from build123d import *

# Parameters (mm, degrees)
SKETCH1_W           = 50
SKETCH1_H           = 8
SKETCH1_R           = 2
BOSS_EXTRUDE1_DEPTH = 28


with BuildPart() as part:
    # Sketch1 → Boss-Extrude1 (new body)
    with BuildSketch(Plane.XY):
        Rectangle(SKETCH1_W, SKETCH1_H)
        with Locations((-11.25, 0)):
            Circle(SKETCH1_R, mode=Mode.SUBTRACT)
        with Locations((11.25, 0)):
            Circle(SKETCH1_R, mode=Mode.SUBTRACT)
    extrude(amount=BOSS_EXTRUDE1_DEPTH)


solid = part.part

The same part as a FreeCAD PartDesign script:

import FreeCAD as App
import Part
import Sketcher
from FreeCAD import Vector


def add_polygon(sketch, points):
    """Adds a closed chain of lines whose ends are joined by coincident constraints."""
    first, n = sketch.GeometryCount, len(points)
    for a, b in zip(points, points[1:] + points[:1]):
        sketch.addGeometry(Part.LineSegment(App.Vector(*a, 0), App.Vector(*b, 0)), False)
    for i in range(n):
        sketch.addConstraint(Sketcher.Constraint("Coincident", first + i, 2, first + (i + 1) % n, 1))

doc = App.newDocument("Part")
body = doc.addObject("PartDesign::Body", "Body")

# Sketch on XY plane
sketch1 = body.newObject("Sketcher::SketchObject", "Sketch")
sketch1.AttachmentSupport = (doc.getObject("XY_Plane"), [""])
sketch1.MapMode = "FlatFace"
add_polygon(sketch1, [(-25, 4), (-25, -4), (25, -4), (25, 4)])  # lines 0-3
sketch1.addGeometry(Part.Circle(Vector(-11.25, 0, 0), Vector(0, 0, 1), 2), False)  # 4
sketch1.addGeometry(Part.Circle(Vector(11.25, 0, 0), Vector(0, 0, 1), 2), False)  # 5
sketch1.addConstraint([
    Sketcher.Constraint("Vertical", 0),
    Sketcher.Constraint("Horizontal", 1),
    Sketcher.Constraint("Vertical", 2),
    Sketcher.Constraint("Horizontal", 3),
    Sketcher.Constraint("Equal", 4, 5),
    Sketcher.Constraint("Symmetric", 4, 3, 5, 3, -1, 1),
    Sketcher.Constraint("Symmetric", 0, 2, 2, 2, -1, 1),
    Sketcher.Constraint("PointOnObject", 4, 3, -1),
    Sketcher.Constraint("Diameter", 4, 4.0),
    Sketcher.Constraint("DistanceX", 1, 1, 1, 2, 50.0),
    Sketcher.Constraint("DistanceY", 0, 2, 0, 1, 8.0),
    Sketcher.Constraint("DistanceX", 4, 3, 5, 3, 22.5),
])
pad1 = body.newObject("PartDesign::Pad", "Pad")
pad1.Profile = sketch1
pad1.Length = 28

doc.recompute()
